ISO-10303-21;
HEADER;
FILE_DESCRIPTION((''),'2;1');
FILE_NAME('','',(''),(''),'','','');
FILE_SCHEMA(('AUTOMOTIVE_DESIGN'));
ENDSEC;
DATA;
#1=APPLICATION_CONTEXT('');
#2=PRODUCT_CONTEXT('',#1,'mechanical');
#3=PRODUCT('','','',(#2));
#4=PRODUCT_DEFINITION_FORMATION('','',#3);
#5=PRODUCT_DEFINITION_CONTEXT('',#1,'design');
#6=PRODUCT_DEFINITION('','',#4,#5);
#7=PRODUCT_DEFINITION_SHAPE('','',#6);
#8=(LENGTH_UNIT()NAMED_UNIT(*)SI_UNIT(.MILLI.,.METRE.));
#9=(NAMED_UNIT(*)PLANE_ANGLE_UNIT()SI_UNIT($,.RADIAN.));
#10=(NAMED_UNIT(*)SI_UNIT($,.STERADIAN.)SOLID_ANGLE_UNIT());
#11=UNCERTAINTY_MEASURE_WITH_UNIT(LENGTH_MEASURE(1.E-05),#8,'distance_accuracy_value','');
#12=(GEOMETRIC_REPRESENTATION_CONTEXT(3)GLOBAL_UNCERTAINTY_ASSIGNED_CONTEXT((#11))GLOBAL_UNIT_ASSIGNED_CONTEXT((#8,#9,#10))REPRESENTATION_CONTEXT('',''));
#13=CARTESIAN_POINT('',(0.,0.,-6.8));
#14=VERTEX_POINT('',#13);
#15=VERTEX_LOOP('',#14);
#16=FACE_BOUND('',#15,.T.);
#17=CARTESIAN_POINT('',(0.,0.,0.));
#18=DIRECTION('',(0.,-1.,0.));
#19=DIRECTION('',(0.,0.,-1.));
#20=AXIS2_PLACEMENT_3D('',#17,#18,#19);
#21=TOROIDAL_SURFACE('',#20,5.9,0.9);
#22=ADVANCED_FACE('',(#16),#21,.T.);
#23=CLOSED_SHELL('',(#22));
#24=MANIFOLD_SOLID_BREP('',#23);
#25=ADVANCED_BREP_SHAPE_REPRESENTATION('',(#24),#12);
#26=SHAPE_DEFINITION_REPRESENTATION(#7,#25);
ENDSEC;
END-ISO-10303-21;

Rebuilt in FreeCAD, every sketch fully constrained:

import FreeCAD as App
import Part
import Sketcher
from FreeCAD import Vector

doc = App.newDocument("Part")
body = doc.addObject("PartDesign::Body", "Body")

# Sketch on XY plane
sketch1 = doc.addObject("Sketcher::SketchObject", "Sketch")
body.addObject(sketch1)
sketch1.AttachmentSupport = (doc.XY_Plane, [""])
sketch1.MapMode = "FlatFace"
sketch1.addGeometry(Part.Circle(Vector(-5.9, 0, 0), Vector(0, 0, 1), 0.9), False)
sketch1.addConstraint([
    Sketcher.Constraint("PointOnObject", 0, 3, -1),
    Sketcher.Constraint("Diameter", 0, 1.8),
    Sketcher.Constraint("DistanceX", 0, 3, -1, 1, 5.9),
])

# Sketch on XZ plane
sketch2 = doc.addObject("Sketcher::SketchObject", "Sketch001")
body.addObject(sketch2)
sketch2.AttachmentSupport = (doc.XZ_Plane, [""])
sketch2.MapMode = "FlatFace"
sketch2.addGeometry(Part.Circle(Vector(0, 0, 0), Vector(0, 0, 1), 5), False)
sketch2.addConstraint([
    Sketcher.Constraint("Coincident", 0, 3, -1, 1),
    Sketcher.Constraint("Diameter", 0, 10.0),
])
doc.recompute()

additivepipe = doc.addObject("PartDesign::AdditivePipe", "AdditivePipe")
body.addObject(additivepipe)
additivepipe.Profile = sketch1
additivepipe.Spine = (sketch2, ["Edge1"])

doc.recompute()
